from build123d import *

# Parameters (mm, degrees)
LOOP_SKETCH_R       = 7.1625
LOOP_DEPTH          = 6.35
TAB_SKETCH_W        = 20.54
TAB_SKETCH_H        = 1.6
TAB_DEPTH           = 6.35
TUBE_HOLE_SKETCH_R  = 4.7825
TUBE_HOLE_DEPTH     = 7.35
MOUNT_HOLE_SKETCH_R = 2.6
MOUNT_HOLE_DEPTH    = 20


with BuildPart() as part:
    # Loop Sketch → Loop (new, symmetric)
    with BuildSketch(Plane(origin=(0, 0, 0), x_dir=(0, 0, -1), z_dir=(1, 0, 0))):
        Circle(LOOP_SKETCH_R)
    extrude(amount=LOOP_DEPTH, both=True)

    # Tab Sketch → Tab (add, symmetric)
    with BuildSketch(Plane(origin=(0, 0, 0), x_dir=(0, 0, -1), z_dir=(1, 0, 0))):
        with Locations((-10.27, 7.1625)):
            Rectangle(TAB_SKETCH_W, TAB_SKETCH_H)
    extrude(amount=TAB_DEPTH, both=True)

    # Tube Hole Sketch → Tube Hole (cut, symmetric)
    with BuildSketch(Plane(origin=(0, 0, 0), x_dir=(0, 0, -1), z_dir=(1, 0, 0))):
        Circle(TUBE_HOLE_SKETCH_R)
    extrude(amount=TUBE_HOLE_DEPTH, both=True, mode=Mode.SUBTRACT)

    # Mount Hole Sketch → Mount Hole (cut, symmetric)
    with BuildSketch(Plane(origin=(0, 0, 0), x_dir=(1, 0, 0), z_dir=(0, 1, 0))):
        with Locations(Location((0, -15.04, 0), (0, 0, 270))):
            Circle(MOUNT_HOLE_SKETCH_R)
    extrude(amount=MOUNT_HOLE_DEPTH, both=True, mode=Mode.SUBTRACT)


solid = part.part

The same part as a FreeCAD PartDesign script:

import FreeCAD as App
import Part
import Sketcher


def add_polygon(sketch, points):
    """Adds a closed chain of lines whose ends are joined by coincident constraints."""
    first, n = sketch.GeometryCount, len(points)
    for a, b in zip(points, points[1:] + points[:1]):
        sketch.addGeometry(Part.LineSegment(App.Vector(*a, 0), App.Vector(*b, 0)), False)
    for i in range(n):
        sketch.addConstraint(Sketcher.Constraint("Coincident", first + i, 2, first + (i + 1) % n, 1))

doc = App.newDocument("Part")
body = doc.addObject("PartDesign::Body", "Body")

# Sketch on YZ plane
sketch1 = doc.addObject("Sketcher::SketchObject", "Sketch")
body.addObject(sketch1)
sketch1.AttachmentSupport = (doc.YZ_Plane, [""])
sketch1.MapMode = "FlatFace"
sketch1.addGeometry(Part.Circle(App.Vector(0, 0, 0), App.Vector(0, 0, 1), 7), False)
sketch1.addConstraint([
    Sketcher.Constraint("Coincident", 0, 3, -1, 1),
    Sketcher.Constraint("Diameter", 0, 14.325),
])
pad1 = doc.addObject("PartDesign::Pad", "Pad")
body.addObject(pad1)
pad1.Profile = sketch1
pad1.Length = 12.7
pad1.Midplane = True

# Sketch on YZ plane
sketch2 = doc.addObject("Sketcher::SketchObject", "Sketch001")
body.addObject(sketch2)
sketch2.AttachmentSupport = (doc.YZ_Plane, [""])
sketch2.MapMode = "FlatFace"
add_polygon(sketch2, [(8, 20.5), (6.4, 20.5), (6.4, 0), (8, 0)])  # lines 0-3
sketch2.addConstraint([
    Sketcher.Constraint("Horizontal", 0),
    Sketcher.Constraint("Vertical", 1),
    Sketcher.Constraint("Horizontal", 2),
    Sketcher.Constraint("Vertical", 3),
    Sketcher.Constraint("PointOnObject", 1, 2, -1),
    Sketcher.Constraint("DistanceX", 0, 2, 0, 1, 1.6),
    Sketcher.Constraint("DistanceY", 1, 2, 1, 1, 20.54),
    Sketcher.Constraint("DistanceX", -1, 1, 0, 2, 6.3625),
])
pad2 = doc.addObject("PartDesign::Pad", "Pad001")
body.addObject(pad2)
pad2.Profile = sketch2
pad2.Length = 12.7
pad2.Midplane = True

# Sketch on YZ plane
sketch3 = doc.addObject("Sketcher::SketchObject", "Sketch002")
body.addObject(sketch3)
sketch3.AttachmentSupport = (doc.YZ_Plane, [""])
sketch3.MapMode = "FlatFace"
sketch3.addGeometry(Part.Circle(App.Vector(0, 0, 0), App.Vector(0, 0, 1), 4.8), False)
sketch3.addConstraint([
    Sketcher.Constraint("Coincident", 0, 3, -1, 1),
    Sketcher.Constraint("Diameter", 0, 9.565),
])
pocket1 = doc.addObject("PartDesign::Pocket", "Pocket")
body.addObject(pocket1)
pocket1.Profile = sketch3
pocket1.Length = 14.7
pocket1.Midplane = True

# Sketch on XZ plane
sketch4 = doc.addObject("Sketcher::SketchObject", "Sketch003")
body.addObject(sketch4)
sketch4.AttachmentSupport = (doc.XZ_Plane, [""])
sketch4.MapMode = "FlatFace"
sketch4.addGeometry(Part.Circle(App.Vector(0, 15, 0), App.Vector(0, 0, 1), 2.6), False)
sketch4.addConstraint([
    Sketcher.Constraint("PointOnObject", 0, 3, -2),
    Sketcher.Constraint("Diameter", 0, 5.2),
    Sketcher.Constraint("DistanceY", -1, 1, 0, 3, 15.04),
])
pocket2 = doc.addObject("PartDesign::Pocket", "Pocket001")
body.addObject(pocket2)
pocket2.Profile = sketch4
pocket2.Length = 40
pocket2.Midplane = True

doc.recompute()
